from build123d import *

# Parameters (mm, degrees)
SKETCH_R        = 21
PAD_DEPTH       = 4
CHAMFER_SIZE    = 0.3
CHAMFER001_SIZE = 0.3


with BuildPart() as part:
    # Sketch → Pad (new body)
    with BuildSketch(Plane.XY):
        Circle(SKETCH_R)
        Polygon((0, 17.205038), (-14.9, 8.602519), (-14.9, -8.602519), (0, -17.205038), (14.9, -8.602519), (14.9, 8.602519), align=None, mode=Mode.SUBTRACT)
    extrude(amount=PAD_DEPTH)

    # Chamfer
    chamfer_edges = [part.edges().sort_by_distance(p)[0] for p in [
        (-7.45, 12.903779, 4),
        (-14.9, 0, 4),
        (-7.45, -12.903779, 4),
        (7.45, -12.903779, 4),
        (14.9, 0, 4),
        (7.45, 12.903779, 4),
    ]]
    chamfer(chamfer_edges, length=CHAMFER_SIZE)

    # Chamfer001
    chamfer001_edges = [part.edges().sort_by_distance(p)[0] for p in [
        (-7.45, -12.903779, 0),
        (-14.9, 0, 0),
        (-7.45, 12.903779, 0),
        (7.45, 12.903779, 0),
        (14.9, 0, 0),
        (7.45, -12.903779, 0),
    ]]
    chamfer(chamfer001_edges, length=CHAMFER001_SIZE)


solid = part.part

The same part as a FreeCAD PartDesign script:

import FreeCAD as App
import Part
import Sketcher
Q = App.Units.Quantity


def edges_at(feature, points):
    """Names of the edges that pass closest to the given points."""
    edges = feature.Shape.Edges
    near = lambda p: min(range(len(edges)), key=lambda i: edges[i].distToShape(Part.Vertex(*p))[0])
    return sorted({f"Edge{near(p) + 1}" for p in points})


def add_polygon(sketch, points):
    """Adds a closed chain of lines whose ends are joined by coincident constraints."""
    first, n = sketch.GeometryCount, len(points)
    for a, b in zip(points, points[1:] + points[:1]):
        sketch.addGeometry(Part.LineSegment(App.Vector(*a, 0), App.Vector(*b, 0)), False)
    for i in range(n):
        sketch.addConstraint(Sketcher.Constraint("Coincident", first + i, 2, first + (i + 1) % n, 1))

doc = App.newDocument("Part")
body = doc.addObject("PartDesign::Body", "Body")

# Sketch on XY plane
sketch1 = body.newObject("Sketcher::SketchObject", "Sketch")
sketch1.AttachmentSupport = (doc.getObject("XY_Plane"), [""])
sketch1.MapMode = "FlatFace"
sketch1.addGeometry(Part.Circle(App.Vector(0, 0, 0), App.Vector(0, 0, 1), 21), False)  # 0
add_polygon(sketch1, [(-15, 9), (0, 17), (15, 9), (15, -9), (0, -17), (-15, -9)])  # lines 1-6
sketch1.addConstraint([
    Sketcher.Constraint("Vertical", 3),
    Sketcher.Constraint("Vertical", 6),
    Sketcher.Constraint("Coincident", 0, 3, -1, 1),
    Sketcher.Constraint("Symmetric", 1, 2, 4, 2, -1, 1),
    Sketcher.Constraint("Symmetric", 2, 2, 5, 2, -1, 1),
    Sketcher.Constraint("PointOnObject", 1, 2, -2),
    Sketcher.Constraint("Parallel", 1, 4),
    Sketcher.Constraint("Horizontal", 3, 2, 5, 2),
    Sketcher.Constraint("Diameter", 0, 42.0),
    Sketcher.Constraint("Angle", 1, Q("30 deg")),
    Sketcher.Constraint("DistanceX", -1, 1, 2, 2, 14.9),
    Sketcher.Constraint("DistanceY", 3, 2, 3, 1, 17.205038),
])
pad1 = body.newObject("PartDesign::Pad", "Pad")
pad1.Profile = sketch1
pad1.Length = 4
doc.recompute()

chamfer = body.newObject("PartDesign::Chamfer", "Chamfer")
chamfer.Base = (pad1, edges_at(pad1, [
    (-7.45, 12.904, 4),
    (-14.9, 0, 4),
    (-7.45, -12.904, 4),
    (7.45, -12.904, 4),
    (14.9, 0, 4),
    (7.45, 12.904, 4),
]))
chamfer.Size = 0.3
doc.recompute()

chamfer2 = body.newObject("PartDesign::Chamfer", "Chamfer001")
chamfer2.Base = (chamfer, edges_at(chamfer, [
    (-7.45, -12.904, 0),
    (-14.9, 0, 0),
    (-7.45, 12.904, 0),
    (7.45, 12.904, 0),
    (14.9, 0, 0),
    (7.45, -12.904, 0),
]))
chamfer2.Size = 0.3

doc.recompute()
